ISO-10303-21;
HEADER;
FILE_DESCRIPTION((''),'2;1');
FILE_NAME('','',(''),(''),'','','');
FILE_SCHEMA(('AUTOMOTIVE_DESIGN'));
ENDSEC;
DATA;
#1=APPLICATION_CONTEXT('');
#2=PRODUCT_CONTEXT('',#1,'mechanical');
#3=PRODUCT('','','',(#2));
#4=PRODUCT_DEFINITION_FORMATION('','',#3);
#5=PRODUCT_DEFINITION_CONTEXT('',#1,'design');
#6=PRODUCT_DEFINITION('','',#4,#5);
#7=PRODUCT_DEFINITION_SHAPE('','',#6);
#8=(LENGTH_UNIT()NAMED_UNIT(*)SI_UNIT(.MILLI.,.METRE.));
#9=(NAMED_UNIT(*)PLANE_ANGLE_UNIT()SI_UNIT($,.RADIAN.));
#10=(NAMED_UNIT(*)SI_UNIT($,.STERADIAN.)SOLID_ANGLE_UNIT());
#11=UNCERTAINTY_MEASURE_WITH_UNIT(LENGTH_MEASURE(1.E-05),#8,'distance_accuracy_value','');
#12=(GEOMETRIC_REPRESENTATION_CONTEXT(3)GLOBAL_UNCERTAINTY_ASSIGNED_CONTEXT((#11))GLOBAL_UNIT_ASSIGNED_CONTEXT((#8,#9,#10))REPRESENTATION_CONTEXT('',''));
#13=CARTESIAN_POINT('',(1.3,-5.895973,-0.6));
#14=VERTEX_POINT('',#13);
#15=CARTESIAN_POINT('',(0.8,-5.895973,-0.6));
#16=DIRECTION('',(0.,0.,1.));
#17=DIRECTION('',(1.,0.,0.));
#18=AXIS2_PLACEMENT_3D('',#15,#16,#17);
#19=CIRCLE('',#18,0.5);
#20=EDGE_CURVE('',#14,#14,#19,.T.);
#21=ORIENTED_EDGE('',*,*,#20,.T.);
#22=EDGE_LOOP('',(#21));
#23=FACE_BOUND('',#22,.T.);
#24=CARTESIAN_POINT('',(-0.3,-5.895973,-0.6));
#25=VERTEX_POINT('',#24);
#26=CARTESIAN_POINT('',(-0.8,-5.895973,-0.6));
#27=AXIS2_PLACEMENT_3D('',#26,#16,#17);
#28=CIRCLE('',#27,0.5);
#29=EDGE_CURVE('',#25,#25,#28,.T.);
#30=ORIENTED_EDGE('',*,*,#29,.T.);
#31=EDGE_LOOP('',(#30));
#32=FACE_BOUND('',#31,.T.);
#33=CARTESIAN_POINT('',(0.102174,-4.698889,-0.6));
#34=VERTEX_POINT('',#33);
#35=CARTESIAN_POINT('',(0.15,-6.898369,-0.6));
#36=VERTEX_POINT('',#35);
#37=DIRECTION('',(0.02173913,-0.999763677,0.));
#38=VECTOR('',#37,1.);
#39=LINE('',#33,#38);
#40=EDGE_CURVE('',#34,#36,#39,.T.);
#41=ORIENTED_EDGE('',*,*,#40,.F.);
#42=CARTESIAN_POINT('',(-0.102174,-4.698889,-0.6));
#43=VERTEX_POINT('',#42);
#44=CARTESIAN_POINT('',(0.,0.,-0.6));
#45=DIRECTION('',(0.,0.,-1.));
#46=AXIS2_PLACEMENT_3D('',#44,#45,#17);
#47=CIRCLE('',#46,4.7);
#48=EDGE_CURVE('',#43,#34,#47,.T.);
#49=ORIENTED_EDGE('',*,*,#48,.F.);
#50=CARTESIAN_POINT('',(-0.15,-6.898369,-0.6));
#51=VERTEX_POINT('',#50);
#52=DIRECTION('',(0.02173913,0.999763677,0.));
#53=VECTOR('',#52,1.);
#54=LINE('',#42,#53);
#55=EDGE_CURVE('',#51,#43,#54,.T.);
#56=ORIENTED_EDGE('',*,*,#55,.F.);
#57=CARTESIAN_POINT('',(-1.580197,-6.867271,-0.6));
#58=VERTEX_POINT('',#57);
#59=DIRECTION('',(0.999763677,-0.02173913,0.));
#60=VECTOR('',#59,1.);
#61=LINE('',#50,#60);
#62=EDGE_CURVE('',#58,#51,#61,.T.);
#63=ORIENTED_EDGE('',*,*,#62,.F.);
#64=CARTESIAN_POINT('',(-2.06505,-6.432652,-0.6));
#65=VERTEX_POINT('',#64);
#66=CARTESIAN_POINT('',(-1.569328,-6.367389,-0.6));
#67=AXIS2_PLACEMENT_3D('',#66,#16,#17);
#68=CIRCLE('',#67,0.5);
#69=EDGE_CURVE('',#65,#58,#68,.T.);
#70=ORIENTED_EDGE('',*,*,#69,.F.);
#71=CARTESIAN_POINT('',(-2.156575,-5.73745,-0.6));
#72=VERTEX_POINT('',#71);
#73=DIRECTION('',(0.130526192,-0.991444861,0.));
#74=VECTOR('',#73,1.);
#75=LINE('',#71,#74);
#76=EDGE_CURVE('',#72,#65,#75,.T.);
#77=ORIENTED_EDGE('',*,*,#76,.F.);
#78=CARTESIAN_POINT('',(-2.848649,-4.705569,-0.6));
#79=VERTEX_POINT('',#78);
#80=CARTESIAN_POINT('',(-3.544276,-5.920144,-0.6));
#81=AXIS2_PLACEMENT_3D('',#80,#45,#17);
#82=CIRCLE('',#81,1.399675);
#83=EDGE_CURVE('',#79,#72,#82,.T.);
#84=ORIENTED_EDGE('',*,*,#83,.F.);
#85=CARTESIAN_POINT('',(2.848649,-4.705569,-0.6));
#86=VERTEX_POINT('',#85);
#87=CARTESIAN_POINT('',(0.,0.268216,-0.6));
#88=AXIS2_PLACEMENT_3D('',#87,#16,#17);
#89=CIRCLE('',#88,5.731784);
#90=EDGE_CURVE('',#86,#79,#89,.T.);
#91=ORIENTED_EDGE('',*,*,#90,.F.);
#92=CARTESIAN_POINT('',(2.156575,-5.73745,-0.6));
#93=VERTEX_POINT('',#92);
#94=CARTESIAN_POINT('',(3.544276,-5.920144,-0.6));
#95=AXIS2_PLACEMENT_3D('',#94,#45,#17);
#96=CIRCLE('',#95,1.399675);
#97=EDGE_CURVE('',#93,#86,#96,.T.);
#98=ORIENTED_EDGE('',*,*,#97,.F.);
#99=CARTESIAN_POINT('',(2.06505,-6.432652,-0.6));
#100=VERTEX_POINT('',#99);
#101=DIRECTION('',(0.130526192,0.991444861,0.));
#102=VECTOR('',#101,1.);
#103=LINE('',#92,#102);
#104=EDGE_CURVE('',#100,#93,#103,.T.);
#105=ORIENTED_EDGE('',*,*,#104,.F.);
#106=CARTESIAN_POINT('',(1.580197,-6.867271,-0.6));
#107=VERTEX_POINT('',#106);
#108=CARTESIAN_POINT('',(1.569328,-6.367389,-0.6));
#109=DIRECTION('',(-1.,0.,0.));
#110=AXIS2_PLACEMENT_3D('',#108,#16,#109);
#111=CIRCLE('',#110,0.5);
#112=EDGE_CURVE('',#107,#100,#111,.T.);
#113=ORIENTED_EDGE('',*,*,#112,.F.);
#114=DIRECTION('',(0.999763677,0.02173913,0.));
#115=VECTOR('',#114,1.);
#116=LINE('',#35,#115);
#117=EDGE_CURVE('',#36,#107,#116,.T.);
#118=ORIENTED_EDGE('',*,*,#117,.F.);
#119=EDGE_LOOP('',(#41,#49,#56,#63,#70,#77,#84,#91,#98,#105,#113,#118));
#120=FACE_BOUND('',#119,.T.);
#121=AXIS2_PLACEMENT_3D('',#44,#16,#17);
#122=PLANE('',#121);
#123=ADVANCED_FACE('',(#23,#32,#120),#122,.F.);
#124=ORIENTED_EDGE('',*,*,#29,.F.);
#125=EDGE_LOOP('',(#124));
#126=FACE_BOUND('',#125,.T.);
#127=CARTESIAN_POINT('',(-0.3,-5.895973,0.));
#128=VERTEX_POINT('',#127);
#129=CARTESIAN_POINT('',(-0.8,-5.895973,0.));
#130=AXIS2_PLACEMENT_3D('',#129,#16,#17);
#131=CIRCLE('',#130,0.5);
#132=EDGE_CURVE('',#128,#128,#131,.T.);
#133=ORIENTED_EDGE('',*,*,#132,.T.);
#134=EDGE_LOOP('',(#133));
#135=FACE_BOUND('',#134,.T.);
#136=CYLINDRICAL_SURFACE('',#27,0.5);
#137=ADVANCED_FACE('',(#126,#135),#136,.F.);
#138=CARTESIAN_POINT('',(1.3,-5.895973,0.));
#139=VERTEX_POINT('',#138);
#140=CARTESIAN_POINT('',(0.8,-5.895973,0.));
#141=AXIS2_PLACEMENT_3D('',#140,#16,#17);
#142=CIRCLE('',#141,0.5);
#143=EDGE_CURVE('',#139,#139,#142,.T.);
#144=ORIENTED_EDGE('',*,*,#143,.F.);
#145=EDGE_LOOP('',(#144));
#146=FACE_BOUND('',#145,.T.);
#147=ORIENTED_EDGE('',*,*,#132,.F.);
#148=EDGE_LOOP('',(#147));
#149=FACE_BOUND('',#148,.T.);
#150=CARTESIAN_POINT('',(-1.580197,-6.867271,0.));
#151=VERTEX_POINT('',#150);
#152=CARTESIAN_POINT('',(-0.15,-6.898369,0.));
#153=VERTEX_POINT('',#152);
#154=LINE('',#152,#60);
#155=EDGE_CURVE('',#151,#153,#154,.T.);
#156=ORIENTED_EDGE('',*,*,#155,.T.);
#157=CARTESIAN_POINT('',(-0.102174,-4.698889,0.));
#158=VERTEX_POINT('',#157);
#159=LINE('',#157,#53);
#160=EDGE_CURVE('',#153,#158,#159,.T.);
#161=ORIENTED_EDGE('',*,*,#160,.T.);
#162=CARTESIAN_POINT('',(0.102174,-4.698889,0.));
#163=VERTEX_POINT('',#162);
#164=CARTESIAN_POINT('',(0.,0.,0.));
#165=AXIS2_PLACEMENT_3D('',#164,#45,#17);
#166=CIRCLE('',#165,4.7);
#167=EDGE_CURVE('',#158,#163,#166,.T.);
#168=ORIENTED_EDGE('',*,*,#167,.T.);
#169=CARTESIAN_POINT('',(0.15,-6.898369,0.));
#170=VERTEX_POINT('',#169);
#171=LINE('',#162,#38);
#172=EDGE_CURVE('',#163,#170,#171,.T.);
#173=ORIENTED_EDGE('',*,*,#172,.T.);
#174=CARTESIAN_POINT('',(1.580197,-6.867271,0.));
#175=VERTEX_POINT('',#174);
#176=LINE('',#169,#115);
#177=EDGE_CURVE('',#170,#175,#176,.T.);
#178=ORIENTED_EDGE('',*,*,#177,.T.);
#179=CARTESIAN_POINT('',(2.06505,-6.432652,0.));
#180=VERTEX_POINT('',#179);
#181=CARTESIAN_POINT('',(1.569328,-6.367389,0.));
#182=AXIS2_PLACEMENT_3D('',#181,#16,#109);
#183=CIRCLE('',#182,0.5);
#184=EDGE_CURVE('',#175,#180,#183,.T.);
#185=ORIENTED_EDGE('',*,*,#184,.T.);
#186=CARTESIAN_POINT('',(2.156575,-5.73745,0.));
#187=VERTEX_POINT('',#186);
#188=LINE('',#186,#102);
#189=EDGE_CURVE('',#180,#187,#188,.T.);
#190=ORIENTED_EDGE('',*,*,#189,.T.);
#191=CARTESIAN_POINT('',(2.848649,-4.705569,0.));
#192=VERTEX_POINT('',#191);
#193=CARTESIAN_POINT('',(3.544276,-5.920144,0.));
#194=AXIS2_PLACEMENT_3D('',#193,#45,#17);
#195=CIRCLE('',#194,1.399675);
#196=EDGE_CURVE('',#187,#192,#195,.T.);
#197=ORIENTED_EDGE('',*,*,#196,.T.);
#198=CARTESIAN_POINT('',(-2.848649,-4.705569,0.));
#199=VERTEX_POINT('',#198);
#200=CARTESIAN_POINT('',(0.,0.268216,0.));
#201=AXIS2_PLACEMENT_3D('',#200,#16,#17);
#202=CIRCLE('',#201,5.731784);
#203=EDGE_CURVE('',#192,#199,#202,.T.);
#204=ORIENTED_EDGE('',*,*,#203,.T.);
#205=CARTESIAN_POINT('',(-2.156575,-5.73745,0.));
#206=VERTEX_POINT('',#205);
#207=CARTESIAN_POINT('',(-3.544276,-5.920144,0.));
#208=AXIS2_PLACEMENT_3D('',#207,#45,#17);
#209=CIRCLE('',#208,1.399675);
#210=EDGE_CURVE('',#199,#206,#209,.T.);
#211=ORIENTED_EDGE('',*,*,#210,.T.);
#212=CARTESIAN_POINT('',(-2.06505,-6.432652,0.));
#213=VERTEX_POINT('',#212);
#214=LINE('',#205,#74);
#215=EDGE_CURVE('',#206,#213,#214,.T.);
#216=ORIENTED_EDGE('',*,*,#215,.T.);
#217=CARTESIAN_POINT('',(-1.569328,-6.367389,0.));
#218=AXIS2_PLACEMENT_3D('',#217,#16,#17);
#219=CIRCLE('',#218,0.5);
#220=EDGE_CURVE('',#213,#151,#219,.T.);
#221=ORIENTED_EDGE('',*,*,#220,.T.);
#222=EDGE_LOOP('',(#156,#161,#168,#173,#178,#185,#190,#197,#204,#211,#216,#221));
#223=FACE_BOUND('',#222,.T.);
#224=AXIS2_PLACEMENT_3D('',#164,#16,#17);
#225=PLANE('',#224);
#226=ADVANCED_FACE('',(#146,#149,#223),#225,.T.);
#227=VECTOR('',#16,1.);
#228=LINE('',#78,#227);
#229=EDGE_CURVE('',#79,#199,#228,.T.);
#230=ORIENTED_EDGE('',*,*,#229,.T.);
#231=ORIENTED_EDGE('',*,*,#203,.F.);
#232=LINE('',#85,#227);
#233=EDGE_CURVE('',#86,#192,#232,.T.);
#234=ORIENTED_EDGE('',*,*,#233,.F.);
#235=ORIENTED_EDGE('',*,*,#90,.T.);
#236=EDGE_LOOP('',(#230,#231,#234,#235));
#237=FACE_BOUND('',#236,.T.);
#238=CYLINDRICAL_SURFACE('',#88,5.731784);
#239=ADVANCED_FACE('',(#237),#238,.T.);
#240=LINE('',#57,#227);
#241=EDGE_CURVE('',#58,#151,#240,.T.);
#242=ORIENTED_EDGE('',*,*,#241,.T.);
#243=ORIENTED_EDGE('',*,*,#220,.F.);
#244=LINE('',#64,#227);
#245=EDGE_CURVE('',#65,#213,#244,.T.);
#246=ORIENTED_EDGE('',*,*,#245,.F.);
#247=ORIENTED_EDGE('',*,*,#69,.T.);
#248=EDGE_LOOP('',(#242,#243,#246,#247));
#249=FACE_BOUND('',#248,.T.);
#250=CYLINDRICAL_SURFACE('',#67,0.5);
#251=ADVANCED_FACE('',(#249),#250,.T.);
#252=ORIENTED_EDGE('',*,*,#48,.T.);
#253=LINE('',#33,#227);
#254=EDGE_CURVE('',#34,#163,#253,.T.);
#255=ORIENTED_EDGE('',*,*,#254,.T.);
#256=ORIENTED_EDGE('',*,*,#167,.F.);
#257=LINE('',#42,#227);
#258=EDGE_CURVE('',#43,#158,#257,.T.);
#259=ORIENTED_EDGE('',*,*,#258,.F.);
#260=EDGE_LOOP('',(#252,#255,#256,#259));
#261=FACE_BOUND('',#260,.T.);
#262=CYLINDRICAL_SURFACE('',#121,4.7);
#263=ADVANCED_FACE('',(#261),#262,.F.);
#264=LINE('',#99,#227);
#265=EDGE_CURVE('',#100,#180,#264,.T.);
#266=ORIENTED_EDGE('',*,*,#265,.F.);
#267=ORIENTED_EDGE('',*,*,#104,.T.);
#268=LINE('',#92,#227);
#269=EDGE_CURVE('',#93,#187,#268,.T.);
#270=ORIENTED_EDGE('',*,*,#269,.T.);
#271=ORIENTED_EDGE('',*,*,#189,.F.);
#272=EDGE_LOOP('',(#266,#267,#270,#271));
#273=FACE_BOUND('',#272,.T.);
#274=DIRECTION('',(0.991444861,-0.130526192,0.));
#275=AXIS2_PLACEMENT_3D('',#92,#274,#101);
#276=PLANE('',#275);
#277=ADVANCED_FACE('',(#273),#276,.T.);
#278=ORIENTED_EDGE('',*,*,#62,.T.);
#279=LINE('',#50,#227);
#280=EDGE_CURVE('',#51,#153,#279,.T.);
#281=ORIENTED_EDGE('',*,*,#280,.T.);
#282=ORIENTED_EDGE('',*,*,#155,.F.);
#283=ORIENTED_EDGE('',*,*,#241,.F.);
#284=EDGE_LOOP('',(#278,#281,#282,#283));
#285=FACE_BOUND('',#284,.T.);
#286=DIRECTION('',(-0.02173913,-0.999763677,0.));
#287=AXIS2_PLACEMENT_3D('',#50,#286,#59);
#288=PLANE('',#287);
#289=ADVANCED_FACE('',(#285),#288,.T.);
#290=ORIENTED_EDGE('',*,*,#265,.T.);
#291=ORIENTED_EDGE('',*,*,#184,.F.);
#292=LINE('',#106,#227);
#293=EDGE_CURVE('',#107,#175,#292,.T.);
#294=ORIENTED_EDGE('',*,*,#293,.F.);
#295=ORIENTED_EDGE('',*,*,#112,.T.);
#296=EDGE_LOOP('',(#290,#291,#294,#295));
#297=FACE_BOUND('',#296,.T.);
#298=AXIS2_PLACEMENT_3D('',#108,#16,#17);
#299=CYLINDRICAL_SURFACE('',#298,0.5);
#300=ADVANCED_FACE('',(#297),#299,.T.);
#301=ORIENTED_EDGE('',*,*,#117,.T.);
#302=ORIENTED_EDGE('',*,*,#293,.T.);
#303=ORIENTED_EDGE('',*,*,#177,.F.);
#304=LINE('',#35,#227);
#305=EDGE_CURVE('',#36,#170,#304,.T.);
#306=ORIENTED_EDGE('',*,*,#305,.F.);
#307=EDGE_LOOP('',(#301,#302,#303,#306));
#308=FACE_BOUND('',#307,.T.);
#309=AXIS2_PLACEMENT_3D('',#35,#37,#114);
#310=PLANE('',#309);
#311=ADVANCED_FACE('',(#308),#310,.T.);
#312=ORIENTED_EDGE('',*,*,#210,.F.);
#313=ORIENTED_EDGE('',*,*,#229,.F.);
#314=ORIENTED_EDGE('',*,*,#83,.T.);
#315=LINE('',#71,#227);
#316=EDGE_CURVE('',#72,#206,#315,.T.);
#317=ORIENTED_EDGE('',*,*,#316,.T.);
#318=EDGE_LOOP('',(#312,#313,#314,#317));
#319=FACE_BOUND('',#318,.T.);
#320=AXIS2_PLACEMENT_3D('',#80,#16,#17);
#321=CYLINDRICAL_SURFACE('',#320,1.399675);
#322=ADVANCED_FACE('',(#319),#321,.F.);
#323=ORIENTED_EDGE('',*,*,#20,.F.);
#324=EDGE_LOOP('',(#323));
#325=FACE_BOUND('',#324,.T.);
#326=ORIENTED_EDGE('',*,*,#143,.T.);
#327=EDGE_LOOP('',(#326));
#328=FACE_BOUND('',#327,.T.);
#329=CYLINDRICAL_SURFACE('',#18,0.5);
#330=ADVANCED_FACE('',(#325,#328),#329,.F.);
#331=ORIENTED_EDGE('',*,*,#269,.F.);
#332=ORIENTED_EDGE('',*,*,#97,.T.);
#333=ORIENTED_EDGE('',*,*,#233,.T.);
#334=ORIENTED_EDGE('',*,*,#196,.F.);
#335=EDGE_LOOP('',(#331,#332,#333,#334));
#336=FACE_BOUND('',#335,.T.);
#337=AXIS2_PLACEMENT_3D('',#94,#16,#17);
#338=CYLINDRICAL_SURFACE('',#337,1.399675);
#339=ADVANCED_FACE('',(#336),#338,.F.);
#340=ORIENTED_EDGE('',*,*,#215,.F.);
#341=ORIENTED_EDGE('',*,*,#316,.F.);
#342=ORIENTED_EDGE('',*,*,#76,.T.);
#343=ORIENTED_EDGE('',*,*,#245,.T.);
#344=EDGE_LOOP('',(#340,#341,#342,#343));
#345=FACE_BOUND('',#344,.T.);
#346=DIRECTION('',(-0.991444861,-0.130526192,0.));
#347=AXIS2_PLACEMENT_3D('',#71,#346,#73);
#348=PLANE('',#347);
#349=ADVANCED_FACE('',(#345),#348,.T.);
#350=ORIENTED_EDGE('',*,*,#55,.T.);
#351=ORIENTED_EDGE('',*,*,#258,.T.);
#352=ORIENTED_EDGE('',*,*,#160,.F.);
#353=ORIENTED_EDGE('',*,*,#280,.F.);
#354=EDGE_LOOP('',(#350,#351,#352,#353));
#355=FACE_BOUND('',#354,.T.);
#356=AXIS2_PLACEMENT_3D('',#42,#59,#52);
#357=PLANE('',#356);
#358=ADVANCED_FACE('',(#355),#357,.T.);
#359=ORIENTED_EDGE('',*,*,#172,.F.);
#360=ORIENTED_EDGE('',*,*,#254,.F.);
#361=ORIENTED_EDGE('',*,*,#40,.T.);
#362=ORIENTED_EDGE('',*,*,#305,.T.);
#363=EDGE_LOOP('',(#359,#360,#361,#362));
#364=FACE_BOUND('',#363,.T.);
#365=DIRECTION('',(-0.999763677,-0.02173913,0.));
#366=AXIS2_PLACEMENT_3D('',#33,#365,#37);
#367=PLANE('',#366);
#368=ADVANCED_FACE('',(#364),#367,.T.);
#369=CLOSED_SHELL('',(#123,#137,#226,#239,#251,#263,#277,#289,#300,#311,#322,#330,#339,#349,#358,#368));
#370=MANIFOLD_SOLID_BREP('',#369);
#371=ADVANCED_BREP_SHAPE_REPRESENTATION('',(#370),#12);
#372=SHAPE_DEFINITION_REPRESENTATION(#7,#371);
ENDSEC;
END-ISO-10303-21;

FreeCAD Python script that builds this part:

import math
import FreeCAD as App
import Part
import Sketcher
from FreeCAD import Vector
Q = App.Units.Quantity

doc = App.newDocument("Part")
body = doc.addObject("PartDesign::Body", "Body")

# Sketch on XY plane
sketch1 = body.newObject("Sketcher::SketchObject", "Sketch")
sketch1.AttachmentSupport = (doc.getObject("XY_Plane"), [""])
sketch1.MapMode = "FlatFace"
sketch1.addGeometry([
    Part.LineSegment(Vector(0.1, -4.7, 0), Vector(0.15, -6.9, 0)),  # 0
    Part.LineSegment(Vector(0.15, -6.9, 0), Vector(1.58, -6.87, 0)),  # 1
    Part.ArcOfCircle(Part.Circle(Vector(1.57, -6.37, 0), Vector(0, 0, 1), 0.5), math.radians(-89), math.radians(-8)),  # 2
    Part.LineSegment(Vector(2.07, -6.43, 0), Vector(2.16, -5.74, 0)),  # 3
    Part.ArcOfCircle(Part.Circle(Vector(3.54, -5.92, 0), Vector(0, 0, 1), 1.4), math.radians(120), math.radians(172)),  # 4
    Part.ArcOfCircle(Part.Circle(Vector(0, 0.27, 0), Vector(0, 0, 1), 5.73), math.radians(-60), math.radians(240)),  # 5
    Part.ArcOfCircle(Part.Circle(Vector(-3.54, -5.92, 0), Vector(0, 0, 1), 1.4), math.radians(8), math.radians(60)),  # 6
    Part.LineSegment(Vector(-2.16, -5.74, 0), Vector(-2.07, -6.43, 0)),  # 7
    Part.ArcOfCircle(Part.Circle(Vector(-1.57, -6.37, 0), Vector(0, 0, 1), 0.5), math.radians(-172), math.radians(-91)),  # 8
    Part.LineSegment(Vector(-1.58, -6.87, 0), Vector(-0.15, -6.9, 0)),  # 9
    Part.LineSegment(Vector(-0.15, -6.9, 0), Vector(-0.1, -4.7, 0)),  # 10
    Part.ArcOfCircle(Part.Circle(Vector(0, 0, 0), Vector(0, 0, 1), 4.7), math.radians(-89), math.radians(269)),  # 11
    Part.Circle(Vector(-0.8, -5.9, 0), Vector(0, 0, 1), 0.5),  # 12
    Part.Circle(Vector(0.8, -5.9, 0), Vector(0, 0, 1), 0.5),  # 13
], False)
sketch1.addConstraint([
    Sketcher.Constraint("Coincident", 0, 2, 1, 1),
    Sketcher.Constraint("Tangent", 1, 2, 2, 1),
    Sketcher.Constraint("Tangent", 2, 2, 3, 1),
    Sketcher.Constraint("Tangent", 3, 2, 4, 2),
    Sketcher.Constraint("Tangent", 4, 1, 5, 1),
    Sketcher.Constraint("Tangent", 5, 2, 6, 2),
    Sketcher.Constraint("Tangent", 6, 1, 7, 1),
    Sketcher.Constraint("Tangent", 7, 2, 8, 1),
    Sketcher.Constraint("Tangent", 8, 2, 9, 1),
    Sketcher.Constraint("Coincident", 9, 2, 10, 1),
    Sketcher.Constraint("Coincident", 10, 2, 11, 2),
    Sketcher.Constraint("Coincident", 11, 1, 0, 1),
    Sketcher.Constraint("Coincident", 11, 3, -1, 1),
    Sketcher.Constraint("Equal", 4, 6),
    Sketcher.Constraint("Equal", 2, 8),
    Sketcher.Constraint("Equal", 8, 12),
    Sketcher.Constraint("Equal", 12, 13),
    Sketcher.Constraint("Symmetric", 4, 3, 6, 3, -2),
    Sketcher.Constraint("Symmetric", 2, 3, 8, 3, -2),
    Sketcher.Constraint("Symmetric", 12, 3, 13, 3, -2),
    Sketcher.Constraint("Symmetric", 0, 2, 9, 2, -2),
    Sketcher.Constraint("Perpendicular", 0, 1),
    Sketcher.Constraint("Perpendicular", 9, 10),
    Sketcher.Constraint("Diameter", 12, Q("1 mm")),
    Sketcher.Constraint("Radius", 11, Q("4.7 mm")),
    Sketcher.Constraint("Angle", 3, Q("82.5 deg")),
    Sketcher.Constraint("Distance", 0, Q("2.2 mm")),
    Sketcher.Constraint("DistanceX", 12, 3, -1, 1, Q("0.8 mm")),
    Sketcher.Constraint("DistanceX", 9, 2, 0, 2, Q("0.3 mm")),
    Sketcher.Constraint("Radius", 4, Q("1.399675 mm")),
    Sketcher.Constraint("Radius", 5, Q("5.731784 mm")),
    Sketcher.Constraint("Distance", 3, Q("0.701201 mm")),
    Sketcher.Constraint("DistanceY", 0, 2, 1, 2, Q("0.031099 mm")),
    Sketcher.Constraint("DistanceX", 2, 2, 4, 1, Q("0.783599 mm")),
    Sketcher.Constraint("DistanceY", 6, 3, 12, 3, Q("0.024171 mm")),
])
pad1 = body.newObject("PartDesign::Pad", "Pad")
pad1.Profile = sketch1
pad1.Length = 0.6
pad1.Reversed = True

doc.recompute()
